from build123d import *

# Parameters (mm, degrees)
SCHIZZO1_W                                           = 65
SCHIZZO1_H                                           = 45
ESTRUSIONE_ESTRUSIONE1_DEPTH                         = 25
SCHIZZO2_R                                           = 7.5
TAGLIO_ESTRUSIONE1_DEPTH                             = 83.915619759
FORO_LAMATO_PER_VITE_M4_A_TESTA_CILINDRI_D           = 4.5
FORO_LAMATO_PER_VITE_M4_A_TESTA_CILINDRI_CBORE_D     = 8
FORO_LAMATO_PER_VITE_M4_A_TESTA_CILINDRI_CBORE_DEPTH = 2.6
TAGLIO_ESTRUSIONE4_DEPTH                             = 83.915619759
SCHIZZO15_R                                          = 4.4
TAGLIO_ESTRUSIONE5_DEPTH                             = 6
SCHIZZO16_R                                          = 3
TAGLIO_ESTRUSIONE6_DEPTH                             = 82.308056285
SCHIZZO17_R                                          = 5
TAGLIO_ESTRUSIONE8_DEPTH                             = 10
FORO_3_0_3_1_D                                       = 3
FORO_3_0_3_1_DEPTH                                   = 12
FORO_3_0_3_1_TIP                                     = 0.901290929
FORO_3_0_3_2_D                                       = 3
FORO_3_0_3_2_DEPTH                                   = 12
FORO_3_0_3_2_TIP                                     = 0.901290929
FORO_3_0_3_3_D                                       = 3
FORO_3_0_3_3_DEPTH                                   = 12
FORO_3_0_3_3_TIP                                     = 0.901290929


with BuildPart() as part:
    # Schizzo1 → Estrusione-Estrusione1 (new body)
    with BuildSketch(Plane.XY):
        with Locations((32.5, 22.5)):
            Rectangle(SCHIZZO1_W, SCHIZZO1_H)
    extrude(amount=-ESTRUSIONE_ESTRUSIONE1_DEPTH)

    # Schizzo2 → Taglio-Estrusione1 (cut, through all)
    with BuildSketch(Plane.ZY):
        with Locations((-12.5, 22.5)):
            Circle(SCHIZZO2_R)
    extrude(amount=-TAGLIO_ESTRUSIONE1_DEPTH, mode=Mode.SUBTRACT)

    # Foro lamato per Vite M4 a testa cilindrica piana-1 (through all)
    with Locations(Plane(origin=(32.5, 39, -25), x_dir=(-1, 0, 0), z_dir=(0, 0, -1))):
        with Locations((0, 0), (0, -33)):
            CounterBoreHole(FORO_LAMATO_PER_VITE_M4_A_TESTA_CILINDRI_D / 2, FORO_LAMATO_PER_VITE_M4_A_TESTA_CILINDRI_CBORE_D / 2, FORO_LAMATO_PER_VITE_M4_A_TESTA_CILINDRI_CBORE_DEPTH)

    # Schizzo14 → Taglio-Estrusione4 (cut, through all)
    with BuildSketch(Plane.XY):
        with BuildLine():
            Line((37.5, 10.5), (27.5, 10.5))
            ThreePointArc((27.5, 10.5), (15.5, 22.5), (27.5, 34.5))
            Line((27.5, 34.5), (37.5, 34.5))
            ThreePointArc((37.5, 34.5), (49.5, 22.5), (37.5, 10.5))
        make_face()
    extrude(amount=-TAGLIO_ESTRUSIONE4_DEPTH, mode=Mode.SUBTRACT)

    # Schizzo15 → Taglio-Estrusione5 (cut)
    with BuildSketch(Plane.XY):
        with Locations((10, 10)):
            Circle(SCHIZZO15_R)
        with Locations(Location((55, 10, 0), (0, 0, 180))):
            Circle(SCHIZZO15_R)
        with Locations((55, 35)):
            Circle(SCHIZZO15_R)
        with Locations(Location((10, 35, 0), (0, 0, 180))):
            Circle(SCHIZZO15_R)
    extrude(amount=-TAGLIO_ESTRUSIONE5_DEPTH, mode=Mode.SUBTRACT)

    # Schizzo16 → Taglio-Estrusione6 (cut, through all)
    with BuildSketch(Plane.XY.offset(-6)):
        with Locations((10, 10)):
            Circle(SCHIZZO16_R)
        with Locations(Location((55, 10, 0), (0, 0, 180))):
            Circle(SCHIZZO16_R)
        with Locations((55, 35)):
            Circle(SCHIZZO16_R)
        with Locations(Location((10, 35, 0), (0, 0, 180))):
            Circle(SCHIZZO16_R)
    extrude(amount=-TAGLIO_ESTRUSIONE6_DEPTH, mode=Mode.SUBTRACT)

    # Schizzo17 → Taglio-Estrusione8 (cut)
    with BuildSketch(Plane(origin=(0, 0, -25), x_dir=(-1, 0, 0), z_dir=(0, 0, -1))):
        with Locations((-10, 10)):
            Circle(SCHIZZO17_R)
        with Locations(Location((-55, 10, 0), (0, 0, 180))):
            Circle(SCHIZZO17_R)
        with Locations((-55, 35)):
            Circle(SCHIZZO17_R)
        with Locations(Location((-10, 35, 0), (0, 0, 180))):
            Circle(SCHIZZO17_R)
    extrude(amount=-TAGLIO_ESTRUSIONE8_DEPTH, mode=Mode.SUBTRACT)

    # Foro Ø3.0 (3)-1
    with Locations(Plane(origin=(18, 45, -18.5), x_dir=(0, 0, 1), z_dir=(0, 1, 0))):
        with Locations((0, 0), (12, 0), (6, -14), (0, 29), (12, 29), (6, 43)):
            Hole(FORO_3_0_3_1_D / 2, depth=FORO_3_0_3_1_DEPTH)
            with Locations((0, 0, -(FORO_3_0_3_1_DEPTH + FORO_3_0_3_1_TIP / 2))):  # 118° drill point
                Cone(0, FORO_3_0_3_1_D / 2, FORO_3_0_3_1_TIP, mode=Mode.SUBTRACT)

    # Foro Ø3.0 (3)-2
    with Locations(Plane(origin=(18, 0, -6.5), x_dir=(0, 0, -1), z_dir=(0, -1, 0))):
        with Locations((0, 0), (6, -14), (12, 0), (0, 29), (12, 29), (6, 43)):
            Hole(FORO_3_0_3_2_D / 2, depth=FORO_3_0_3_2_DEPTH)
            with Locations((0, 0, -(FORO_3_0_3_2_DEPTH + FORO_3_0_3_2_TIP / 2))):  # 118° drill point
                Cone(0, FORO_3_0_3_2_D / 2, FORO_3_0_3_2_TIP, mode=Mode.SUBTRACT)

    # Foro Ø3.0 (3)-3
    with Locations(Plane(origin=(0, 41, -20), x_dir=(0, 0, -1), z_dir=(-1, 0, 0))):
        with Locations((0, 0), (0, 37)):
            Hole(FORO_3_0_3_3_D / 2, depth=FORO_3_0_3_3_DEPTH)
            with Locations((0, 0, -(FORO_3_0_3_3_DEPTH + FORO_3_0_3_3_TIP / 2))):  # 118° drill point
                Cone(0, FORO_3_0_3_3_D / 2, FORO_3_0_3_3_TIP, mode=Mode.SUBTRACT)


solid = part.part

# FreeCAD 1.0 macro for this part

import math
import FreeCAD as App
import Part
import Sketcher
Q = App.Units.Quantity

doc = App.newDocument("Part")
params = doc.addObject("Spreadsheet::Sheet", "Params")
for row, (alias, value) in enumerate([
    ("sketch1_width", "65 mm"),
    ("sketch1_height", "45 mm"),
    ("pad1_length", "25 mm"),
    ("sketch2_diameter", "15 mm"),
    ("sketch3_diameter", "4.5 mm"),
    ("hole_diameter", "4.5 mm"),
    ("hole_cbore_diameter", "8 mm"),
    ("hole_cbore_depth", "2.6 mm"),
    ("sketch4_radius", "12 mm"),
    ("sketch4_width", "10 mm"),
    ("sketch5_diameter", "8.8 mm"),
    ("pocket3_length", "6 mm"),
    ("sketch6_diameter", "6 mm"),
    ("sketch7_diameter", "10 mm"),
    ("pocket5_length", "10 mm"),
    ("sketch8_diameter", "3 mm"),
    ("hole2_diameter", "3 mm"),
    ("hole2_depth", "12 mm"),
    ("sketch9_diameter", "3 mm"),
    ("hole3_diameter", "3 mm"),
    ("hole3_depth", "12 mm"),
    ("sketch10_diameter", "3 mm"),
    ("hole4_diameter", "3 mm"),
    ("hole4_depth", "12 mm"),
], start=1):
    params.set(f"A{row}", alias)
    params.set(f"B{row}", "=" + value)
    params.setAlias(f"B{row}", alias)

body = doc.addObject("PartDesign::Body", "Body")

sketch1 = doc.addObject("Sketcher::SketchObject", "Sketch")
body.addObject(sketch1)
sketch1.AttachmentSupport = (doc.XY_Plane, [""])
sketch1.MapMode = "FlatFace"
sketch1.addGeometry([
    Part.LineSegment(App.Vector(0, 45, 0), App.Vector(0, 0, 0)),
    Part.LineSegment(App.Vector(0, 0, 0), App.Vector(65, 0, 0)),
    Part.LineSegment(App.Vector(65, 0, 0), App.Vector(65, 45, 0)),
    Part.LineSegment(App.Vector(65, 45, 0), App.Vector(0, 45, 0)),
], False)
sketch1.addConstraint([
    Sketcher.Constraint("Coincident", 0, 2, 1, 1),
    Sketcher.Constraint("Coincident", 1, 2, 2, 1),
    Sketcher.Constraint("Coincident", 2, 2, 3, 1),
    Sketcher.Constraint("Coincident", 3, 2, 0, 1),
    Sketcher.Constraint("Vertical", 0),
    Sketcher.Constraint("Horizontal", 1),
    Sketcher.Constraint("Vertical", 2),
    Sketcher.Constraint("Horizontal", 3),
    Sketcher.Constraint("Coincident", 0, 2, -1, 1),
    Sketcher.Constraint("DistanceX", 1, 1, 1, 2, Q("65 mm")),
    Sketcher.Constraint("DistanceY", 0, 2, 0, 1, Q("45 mm")),
])
sketch1.setExpression("Constraints[9]", "Params.sketch1_width")
sketch1.setExpression("Constraints[10]", "Params.sketch1_height")
pad1 = doc.addObject("PartDesign::Pad", "Pad")
body.addObject(pad1)
pad1.Profile = sketch1
pad1.setExpression("Length", "Params.pad1_length")
pad1.Reversed = True

sketch2 = doc.addObject("Sketcher::SketchObject", "Sketch001")
body.addObject(sketch2)
sketch2.AttachmentSupport = (doc.YZ_Plane, [""])
sketch2.MapMode = "FlatFace"
sketch2.addGeometry(Part.Circle(App.Vector(22.5, -12.5, 0), App.Vector(0, 0, 1), 7.5), False)
sketch2.addConstraint([
    Sketcher.Constraint("Diameter", 0, Q("15 mm")),
    Sketcher.Constraint("DistanceX", -1, 1, 0, 3, Q("22.5 mm")),
    Sketcher.Constraint("DistanceY", 0, 3, -1, 1, Q("12.5 mm")),
])
sketch2.setExpression("Constraints[0]", "Params.sketch2_diameter")
pocket1 = doc.addObject("PartDesign::Pocket", "Pocket")
body.addObject(pocket1)
pocket1.Profile = sketch2
pocket1.Type = "ThroughAll"
pocket1.Reversed = True

sketch3 = doc.addObject("Sketcher::SketchObject", "Sketch002")
body.addObject(sketch3)
sketch3.AttachmentSupport = (doc.XY_Plane, [""])
sketch3.MapMode = "FlatFace"
sketch3.AttachmentOffset = App.Placement(App.Vector(0, 0, -25), App.Rotation())
sketch3.addGeometry([
    Part.Circle(App.Vector(32.5, 39, 0), App.Vector(0, 0, 1), 2.25),
    Part.Circle(App.Vector(32.5, 6, 0), App.Vector(0, 0, 1), 2.25),
], False)
sketch3.addConstraint([
    Sketcher.Constraint("Equal", 0, 1),
    Sketcher.Constraint("Vertical", 0, 3, 1, 3),
    Sketcher.Constraint("Diameter", 0, Q("4.5 mm")),
    Sketcher.Constraint("DistanceY", -1, 1, 0, 3, Q("39 mm")),
    Sketcher.Constraint("DistanceY", -1, 1, 1, 3, Q("6 mm")),
    Sketcher.Constraint("DistanceX", -1, 1, 0, 3, Q("32.5 mm")),
])
sketch3.setExpression("Constraints[2]", "Params.sketch3_diameter")
doc.recompute()
hole = doc.addObject("PartDesign::Hole", "Hole")
body.addObject(hole)
hole.Profile = sketch3
hole.ThreadType = "None"
hole.setExpression("Diameter", "Params.hole_diameter")
hole.DepthType = "ThroughAll"
hole.HoleCutType = "Counterbore"
hole.setExpression("HoleCutDiameter", "Params.hole_cbore_diameter")
hole.setExpression("HoleCutDepth", "Params.hole_cbore_depth")
hole.Reversed = True

sketch4 = doc.addObject("Sketcher::SketchObject", "Sketch003")
body.addObject(sketch4)
sketch4.AttachmentSupport = (doc.XY_Plane, [""])
sketch4.MapMode = "FlatFace"
sketch4.addGeometry([
    Part.LineSegment(App.Vector(27.5, 10.5, 0), App.Vector(37.5, 10.5, 0)),
    Part.ArcOfCircle(Part.Circle(App.Vector(37.5, 22.5, 0), App.Vector(0, 0, 1), 12), math.radians(-90), math.radians(90)),
    Part.LineSegment(App.Vector(37.5, 34.5, 0), App.Vector(27.5, 34.5, 0)),
    Part.ArcOfCircle(Part.Circle(App.Vector(27.5, 22.5, 0), App.Vector(0, 0, 1), 12), math.radians(90), math.radians(270)),
], False)
sketch4.addConstraint([
    Sketcher.Constraint("Tangent", 0, 2, 1, 1),
    Sketcher.Constraint("Tangent", 1, 2, 2, 1),
    Sketcher.Constraint("Tangent", 2, 2, 3, 1),
    Sketcher.Constraint("Tangent", 3, 2, 0, 1),
    Sketcher.Constraint("Horizontal", 0),
    Sketcher.Constraint("Horizontal", 2),
    Sketcher.Constraint("Radius", 1, Q("12 mm")),
    Sketcher.Constraint("DistanceX", 0, 1, 0, 2, Q("10 mm")),
    Sketcher.Constraint("DistanceX", -1, 1, 1, 3, Q("37.5 mm")),
    Sketcher.Constraint("DistanceY", -1, 1, 1, 3, Q("22.5 mm")),
])
sketch4.setExpression("Constraints[6]", "Params.sketch4_radius")
sketch4.setExpression("Constraints[7]", "Params.sketch4_width")
pocket2 = doc.addObject("PartDesign::Pocket", "Pocket001")
body.addObject(pocket2)
pocket2.Profile = sketch4
pocket2.Type = "ThroughAll"

sketch5 = doc.addObject("Sketcher::SketchObject", "Sketch004")
body.addObject(sketch5)
sketch5.AttachmentSupport = (doc.XY_Plane, [""])
sketch5.MapMode = "FlatFace"
sketch5.addGeometry([
    Part.Circle(App.Vector(10, 10, 0), App.Vector(0, 0, 1), 4.4),
    Part.Circle(App.Vector(55, 10, 0), App.Vector(0, 0, 1), 4.4),
    Part.Circle(App.Vector(55, 35, 0), App.Vector(0, 0, 1), 4.4),
    Part.Circle(App.Vector(10, 35, 0), App.Vector(0, 0, 1), 4.4),
], False)
sketch5.addConstraint([
    Sketcher.Constraint("Equal", 0, 1),
    Sketcher.Constraint("Equal", 1, 2),
    Sketcher.Constraint("Equal", 2, 3),
    Sketcher.Constraint("Horizontal", 0, 3, 1, 3),
    Sketcher.Constraint("Horizontal", 2, 3, 3, 3),
    Sketcher.Constraint("Vertical", 1, 3, 2, 3),
    Sketcher.Constraint("Vertical", 0, 3, 3, 3),
    Sketcher.Constraint("Diameter", 0, Q("8.8 mm")),
    Sketcher.Constraint("DistanceX", -1, 1, 0, 3, Q("10 mm")),
    Sketcher.Constraint("DistanceY", -1, 1, 0, 3, Q("10 mm")),
    Sketcher.Constraint("DistanceX", -1, 1, 1, 3, Q("55 mm")),
    Sketcher.Constraint("DistanceY", -1, 1, 2, 3, Q("35 mm")),
])
sketch5.setExpression("Constraints[7]", "Params.sketch5_diameter")
pocket3 = doc.addObject("PartDesign::Pocket", "Pocket002")
body.addObject(pocket3)
pocket3.Profile = sketch5
pocket3.setExpression("Length", "Params.pocket3_length")

sketch6 = doc.addObject("Sketcher::SketchObject", "Sketch005")
body.addObject(sketch6)
sketch6.AttachmentSupport = (doc.XY_Plane, [""])
sketch6.MapMode = "FlatFace"
sketch6.AttachmentOffset = App.Placement(App.Vector(0, 0, -6), App.Rotation())
sketch6.addGeometry([
    Part.Circle(App.Vector(10, 10, 0), App.Vector(0, 0, 1), 3),
    Part.Circle(App.Vector(55, 10, 0), App.Vector(0, 0, 1), 3),
    Part.Circle(App.Vector(55, 35, 0), App.Vector(0, 0, 1), 3),
    Part.Circle(App.Vector(10, 35, 0), App.Vector(0, 0, 1), 3),
], False)
sketch6.addConstraint([
    Sketcher.Constraint("Equal", 0, 1),
    Sketcher.Constraint("Equal", 1, 2),
    Sketcher.Constraint("Equal", 2, 3),
    Sketcher.Constraint("Horizontal", 0, 3, 1, 3),
    Sketcher.Constraint("Horizontal", 2, 3, 3, 3),
    Sketcher.Constraint("Vertical", 1, 3, 2, 3),
    Sketcher.Constraint("Vertical", 0, 3, 3, 3),
    Sketcher.Constraint("Diameter", 0, Q("6 mm")),
    Sketcher.Constraint("DistanceX", -1, 1, 0, 3, Q("10 mm")),
    Sketcher.Constraint("DistanceY", -1, 1, 0, 3, Q("10 mm")),
    Sketcher.Constraint("DistanceX", -1, 1, 1, 3, Q("55 mm")),
    Sketcher.Constraint("DistanceY", -1, 1, 2, 3, Q("35 mm")),
])
sketch6.setExpression("Constraints[7]", "Params.sketch6_diameter")
pocket4 = doc.addObject("PartDesign::Pocket", "Pocket003")
body.addObject(pocket4)
pocket4.Profile = sketch6
pocket4.Type = "ThroughAll"

sketch7 = doc.addObject("Sketcher::SketchObject", "Sketch006")
body.addObject(sketch7)
sketch7.AttachmentSupport = (doc.XY_Plane, [""])
sketch7.MapMode = "FlatFace"
sketch7.AttachmentOffset = App.Placement(App.Vector(0, 0, -25), App.Rotation())
sketch7.addGeometry([
    Part.Circle(App.Vector(10, 10, 0), App.Vector(0, 0, 1), 5),
    Part.Circle(App.Vector(55, 10, 0), App.Vector(0, 0, 1), 5),
    Part.Circle(App.Vector(55, 35, 0), App.Vector(0, 0, 1), 5),
    Part.Circle(App.Vector(10, 35, 0), App.Vector(0, 0, 1), 5),
], False)
sketch7.addConstraint([
    Sketcher.Constraint("Equal", 0, 1),
    Sketcher.Constraint("Equal", 1, 2),
    Sketcher.Constraint("Equal", 2, 3),
    Sketcher.Constraint("Horizontal", 0, 3, 1, 3),
    Sketcher.Constraint("Horizontal", 2, 3, 3, 3),
    Sketcher.Constraint("Vertical", 1, 3, 2, 3),
    Sketcher.Constraint("Vertical", 0, 3, 3, 3),
    Sketcher.Constraint("Diameter", 0, Q("10 mm")),
    Sketcher.Constraint("DistanceX", -1, 1, 0, 3, Q("10 mm")),
    Sketcher.Constraint("DistanceY", -1, 1, 0, 3, Q("10 mm")),
    Sketcher.Constraint("DistanceX", -1, 1, 1, 3, Q("55 mm")),
    Sketcher.Constraint("DistanceY", -1, 1, 2, 3, Q("35 mm")),
])
sketch7.setExpression("Constraints[7]", "Params.sketch7_diameter")
pocket5 = doc.addObject("PartDesign::Pocket", "Pocket004")
body.addObject(pocket5)
pocket5.Profile = sketch7
pocket5.setExpression("Length", "Params.pocket5_length")
pocket5.Reversed = True

sketch8 = doc.addObject("Sketcher::SketchObject", "Sketch007")
body.addObject(sketch8)
sketch8.AttachmentSupport = (doc.XZ_Plane, [""])
sketch8.MapMode = "FlatFace"
sketch8.AttachmentOffset = App.Placement(App.Vector(0, 0, -45), App.Rotation())
sketch8.addGeometry([
    Part.Circle(App.Vector(18, -18.5, 0), App.Vector(0, 0, 1), 1.5),
    Part.Circle(App.Vector(18, -6.5, 0), App.Vector(0, 0, 1), 1.5),
    Part.Circle(App.Vector(4, -12.5, 0), App.Vector(0, 0, 1), 1.5),
    Part.Circle(App.Vector(47, -18.5, 0), App.Vector(0, 0, 1), 1.5),
    Part.Circle(App.Vector(47, -6.5, 0), App.Vector(0, 0, 1), 1.5),
    Part.Circle(App.Vector(61, -12.5, 0), App.Vector(0, 0, 1), 1.5),
], False)
sketch8.addConstraint([
    Sketcher.Constraint("Equal", 0, 1),
    Sketcher.Constraint("Equal", 1, 2),
    Sketcher.Constraint("Equal", 2, 3),
    Sketcher.Constraint("Equal", 3, 4),
    Sketcher.Constraint("Equal", 4, 5),
    Sketcher.Constraint("Horizontal", 0, 3, 3, 3),
    Sketcher.Constraint("Horizontal", 1, 3, 4, 3),
    Sketcher.Constraint("Horizontal", 2, 3, 5, 3),
    Sketcher.Constraint("Vertical", 0, 3, 1, 3),
    Sketcher.Constraint("Vertical", 3, 3, 4, 3),
    Sketcher.Constraint("Diameter", 0, Q("3 mm")),
    Sketcher.Constraint("DistanceX", -1, 1, 0, 3, Q("18 mm")),
    Sketcher.Constraint("DistanceX", -1, 1, 2, 3, Q("4 mm")),
    Sketcher.Constraint("DistanceX", -1, 1, 3, 3, Q("47 mm")),
    Sketcher.Constraint("DistanceX", -1, 1, 5, 3, Q("61 mm")),
    Sketcher.Constraint("DistanceY", 0, 3, 1, 3, Q("12 mm")),
    Sketcher.Constraint("DistanceY", 0, 3, 2, 3, Q("6 mm")),
    Sketcher.Constraint("DistanceY", 0, 3, -1, 1, Q("18.5 mm")),
])
sketch8.setExpression("Constraints[10]", "Params.sketch8_diameter")
doc.recompute()
hole2 = doc.addObject("PartDesign::Hole", "Hole001")
body.addObject(hole2)
hole2.Profile = sketch8
hole2.ThreadType = "None"
hole2.setExpression("Diameter", "Params.hole2_diameter")
hole2.DepthType = "Dimension"
hole2.setExpression("Depth", "Params.hole2_depth")
hole2.DrillPoint = "Angled"
hole2.DrillPointAngle = 118
hole2.Reversed = True

sketch9 = doc.addObject("Sketcher::SketchObject", "Sketch008")
body.addObject(sketch9)
sketch9.AttachmentSupport = (doc.XZ_Plane, [""])
sketch9.MapMode = "FlatFace"
sketch9.addGeometry([
    Part.Circle(App.Vector(18, -6.5, 0), App.Vector(0, 0, 1), 1.5),
    Part.Circle(App.Vector(4, -12.5, 0), App.Vector(0, 0, 1), 1.5),
    Part.Circle(App.Vector(18, -18.5, 0), App.Vector(0, 0, 1), 1.5),
    Part.Circle(App.Vector(47, -6.5, 0), App.Vector(0, 0, 1), 1.5),
    Part.Circle(App.Vector(47, -18.5, 0), App.Vector(0, 0, 1), 1.5),
    Part.Circle(App.Vector(61, -12.5, 0), App.Vector(0, 0, 1), 1.5),
], False)
sketch9.addConstraint([
    Sketcher.Constraint("Equal", 0, 1),
    Sketcher.Constraint("Equal", 1, 2),
    Sketcher.Constraint("Equal", 2, 3),
    Sketcher.Constraint("Equal", 3, 4),
    Sketcher.Constraint("Equal", 4, 5),
    Sketcher.Constraint("Horizontal", 0, 3, 3, 3),
    Sketcher.Constraint("Horizontal", 2, 3, 4, 3),
    Sketcher.Constraint("Horizontal", 1, 3, 5, 3),
    Sketcher.Constraint("Vertical", 0, 3, 2, 3),
    Sketcher.Constraint("Vertical", 3, 3, 4, 3),
    Sketcher.Constraint("Diameter", 0, Q("3 mm")),
    Sketcher.Constraint("DistanceX", -1, 1, 0, 3, Q("18 mm")),
    Sketcher.Constraint("DistanceX", -1, 1, 1, 3, Q("4 mm")),
    Sketcher.Constraint("DistanceX", -1, 1, 3, 3, Q("47 mm")),
    Sketcher.Constraint("DistanceX", -1, 1, 5, 3, Q("61 mm")),
    Sketcher.Constraint("DistanceY", 1, 3, 0, 3, Q("6 mm")),
    Sketcher.Constraint("DistanceY", 2, 3, 0, 3, Q("12 mm")),
    Sketcher.Constraint("DistanceY", 0, 3, -1, 1, Q("6.5 mm")),
])
sketch9.setExpression("Constraints[10]", "Params.sketch9_diameter")
doc.recompute()
hole3 = doc.addObject("PartDesign::Hole", "Hole002")
body.addObject(hole3)
hole3.Profile = sketch9
hole3.ThreadType = "None"
hole3.setExpression("Diameter", "Params.hole3_diameter")
hole3.DepthType = "Dimension"
hole3.setExpression("Depth", "Params.hole3_depth")
hole3.DrillPoint = "Angled"
hole3.DrillPointAngle = 118

sketch10 = doc.addObject("Sketcher::SketchObject", "Sketch009")
body.addObject(sketch10)
sketch10.AttachmentSupport = (doc.YZ_Plane, [""])
sketch10.MapMode = "FlatFace"
sketch10.addGeometry([
    Part.Circle(App.Vector(41, -20, 0), App.Vector(0, 0, 1), 1.5),
    Part.Circle(App.Vector(4, -20, 0), App.Vector(0, 0, 1), 1.5),
], False)
sketch10.addConstraint([
    Sketcher.Constraint("Equal", 0, 1),
    Sketcher.Constraint("Horizontal", 0, 3, 1, 3),
    Sketcher.Constraint("Diameter", 0, Q("3 mm")),
    Sketcher.Constraint("DistanceX", -1, 1, 0, 3, Q("41 mm")),
    Sketcher.Constraint("DistanceY", 0, 3, -1, 1, Q("20 mm")),
    Sketcher.Constraint("DistanceX", -1, 1, 1, 3, Q("4 mm")),
])
sketch10.setExpression("Constraints[2]", "Params.sketch10_diameter")
doc.recompute()
hole4 = doc.addObject("PartDesign::Hole", "Hole003")
body.addObject(hole4)
hole4.Profile = sketch10
hole4.ThreadType = "None"
hole4.setExpression("Diameter", "Params.hole4_diameter")
hole4.DepthType = "Dimension"
hole4.setExpression("Depth", "Params.hole4_depth")
hole4.DrillPoint = "Angled"
hole4.DrillPointAngle = 118
hole4.Reversed = True

doc.recompute()
